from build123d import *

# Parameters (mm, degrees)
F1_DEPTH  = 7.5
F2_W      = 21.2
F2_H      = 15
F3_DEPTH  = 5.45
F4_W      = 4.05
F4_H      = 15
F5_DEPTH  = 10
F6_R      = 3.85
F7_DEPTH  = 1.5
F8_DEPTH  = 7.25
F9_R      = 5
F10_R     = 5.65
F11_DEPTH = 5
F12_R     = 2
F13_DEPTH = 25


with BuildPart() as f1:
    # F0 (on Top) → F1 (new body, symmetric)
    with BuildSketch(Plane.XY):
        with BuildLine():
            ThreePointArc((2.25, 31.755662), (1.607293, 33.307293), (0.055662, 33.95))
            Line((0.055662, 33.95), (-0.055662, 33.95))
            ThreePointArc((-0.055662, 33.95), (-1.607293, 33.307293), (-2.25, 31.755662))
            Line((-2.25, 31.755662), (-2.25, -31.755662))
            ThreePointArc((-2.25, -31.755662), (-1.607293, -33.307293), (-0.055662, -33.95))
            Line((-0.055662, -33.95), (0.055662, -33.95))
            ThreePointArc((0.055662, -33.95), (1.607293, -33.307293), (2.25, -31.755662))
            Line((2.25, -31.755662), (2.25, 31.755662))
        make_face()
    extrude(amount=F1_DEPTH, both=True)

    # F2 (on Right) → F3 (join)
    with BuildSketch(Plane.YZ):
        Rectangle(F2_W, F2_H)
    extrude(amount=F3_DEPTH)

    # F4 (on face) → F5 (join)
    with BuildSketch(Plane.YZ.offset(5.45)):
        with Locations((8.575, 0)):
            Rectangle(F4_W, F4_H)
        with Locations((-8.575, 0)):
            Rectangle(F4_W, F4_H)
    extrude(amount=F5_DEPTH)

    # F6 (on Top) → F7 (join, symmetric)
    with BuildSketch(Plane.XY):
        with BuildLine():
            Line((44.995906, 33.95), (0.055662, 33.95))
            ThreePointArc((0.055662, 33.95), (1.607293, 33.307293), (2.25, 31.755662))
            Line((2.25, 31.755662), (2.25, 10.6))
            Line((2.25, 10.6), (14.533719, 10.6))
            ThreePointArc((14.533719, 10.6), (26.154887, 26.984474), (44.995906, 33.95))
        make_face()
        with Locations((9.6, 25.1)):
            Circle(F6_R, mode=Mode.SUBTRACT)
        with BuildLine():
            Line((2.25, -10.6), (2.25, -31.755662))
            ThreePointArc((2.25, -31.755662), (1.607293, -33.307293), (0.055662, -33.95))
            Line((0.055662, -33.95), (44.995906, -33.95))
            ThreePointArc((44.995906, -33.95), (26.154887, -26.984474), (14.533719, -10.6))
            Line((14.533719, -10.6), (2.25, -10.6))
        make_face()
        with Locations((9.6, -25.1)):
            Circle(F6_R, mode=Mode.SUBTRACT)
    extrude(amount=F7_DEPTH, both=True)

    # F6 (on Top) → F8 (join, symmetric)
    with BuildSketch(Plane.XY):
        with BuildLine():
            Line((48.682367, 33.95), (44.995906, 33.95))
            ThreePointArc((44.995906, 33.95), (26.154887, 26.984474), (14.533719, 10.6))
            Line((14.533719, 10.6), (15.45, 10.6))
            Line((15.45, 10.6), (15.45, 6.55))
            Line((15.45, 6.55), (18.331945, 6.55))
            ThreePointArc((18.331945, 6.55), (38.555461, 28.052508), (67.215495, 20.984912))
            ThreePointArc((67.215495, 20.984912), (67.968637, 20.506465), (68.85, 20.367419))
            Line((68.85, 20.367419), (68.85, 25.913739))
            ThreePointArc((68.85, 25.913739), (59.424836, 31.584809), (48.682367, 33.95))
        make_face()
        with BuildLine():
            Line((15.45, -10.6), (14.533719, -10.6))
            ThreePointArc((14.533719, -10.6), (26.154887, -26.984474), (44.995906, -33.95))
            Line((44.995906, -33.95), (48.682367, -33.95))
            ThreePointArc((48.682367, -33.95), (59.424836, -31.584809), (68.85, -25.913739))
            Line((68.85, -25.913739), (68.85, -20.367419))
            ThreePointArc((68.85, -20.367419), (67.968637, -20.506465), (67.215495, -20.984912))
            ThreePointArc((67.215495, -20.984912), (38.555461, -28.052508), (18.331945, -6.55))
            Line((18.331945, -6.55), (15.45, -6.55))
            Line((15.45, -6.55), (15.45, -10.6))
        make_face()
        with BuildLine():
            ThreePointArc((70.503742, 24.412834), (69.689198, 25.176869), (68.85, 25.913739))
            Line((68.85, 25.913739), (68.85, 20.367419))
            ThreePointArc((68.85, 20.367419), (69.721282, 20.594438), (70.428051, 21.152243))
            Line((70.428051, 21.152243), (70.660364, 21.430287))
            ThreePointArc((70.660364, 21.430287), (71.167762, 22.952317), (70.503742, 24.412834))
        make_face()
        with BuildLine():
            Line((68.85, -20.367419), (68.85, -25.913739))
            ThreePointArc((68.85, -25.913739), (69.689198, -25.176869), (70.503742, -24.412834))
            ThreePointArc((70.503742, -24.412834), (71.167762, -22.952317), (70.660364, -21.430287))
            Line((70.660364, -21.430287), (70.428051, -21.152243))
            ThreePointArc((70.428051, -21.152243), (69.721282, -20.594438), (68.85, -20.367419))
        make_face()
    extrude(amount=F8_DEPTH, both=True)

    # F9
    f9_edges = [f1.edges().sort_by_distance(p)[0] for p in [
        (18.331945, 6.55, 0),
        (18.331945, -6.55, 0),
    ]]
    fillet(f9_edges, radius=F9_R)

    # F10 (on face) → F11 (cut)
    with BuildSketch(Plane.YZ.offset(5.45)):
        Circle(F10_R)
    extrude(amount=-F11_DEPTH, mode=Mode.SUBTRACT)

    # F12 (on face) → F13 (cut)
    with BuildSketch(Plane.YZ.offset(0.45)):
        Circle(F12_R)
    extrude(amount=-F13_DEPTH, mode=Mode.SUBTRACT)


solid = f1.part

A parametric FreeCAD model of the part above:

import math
import FreeCAD as App
import Part
import Sketcher

V = App.Vector


def edges_at(feature, points):
    """Names of the edges that pass closest to the given points."""
    edges = feature.Shape.Edges
    near = lambda p: min(range(len(edges)), key=lambda i: edges[i].distToShape(Part.Vertex(*p))[0])
    return sorted({f"Edge{near(p) + 1}" for p in points})

doc = App.newDocument("Part")
body = doc.addObject("PartDesign::Body", "Body")

# Sketch on XY plane
sketch1 = doc.addObject("Sketcher::SketchObject", "Sketch")
body.addObject(sketch1)
sketch1.AttachmentSupport = (doc.XY_Plane, [""])
sketch1.MapMode = "FlatFace"
sketch1.addGeometry([
    Part.ArcOfCircle(Part.Circle(V(0.055661, 31.755661, 0), V(0, 0, 1), 2.194339), math.radians(0.000025), math.radians(89.999975)),  # 0
    Part.LineSegment(V(0.055662, 33.95, 0), V(-0.055662, 33.95, 0)),  # 1
    Part.ArcOfCircle(Part.Circle(V(-0.055661, 31.755661, 0), V(0, 0, 1), 2.194339), math.radians(90.000025), math.radians(179.999975)),  # 2
    Part.LineSegment(V(-2.25, 31.755662, 0), V(-2.25, -31.755662, 0)),  # 3
    Part.ArcOfCircle(Part.Circle(V(-0.055661, -31.755661, 0), V(0, 0, 1), 2.194339), math.radians(-179.999975), math.radians(-90.000025)),  # 4
    Part.LineSegment(V(-0.055662, -33.95, 0), V(0.055662, -33.95, 0)),  # 5
    Part.ArcOfCircle(Part.Circle(V(0.055661, -31.755661, 0), V(0, 0, 1), 2.194339), math.radians(-89.999975), math.radians(-0.000025)),  # 6
    Part.LineSegment(V(2.25, -31.755662, 0), V(2.25, 31.755662, 0)),  # 7
], False)
sketch1.addConstraint([
    Sketcher.Constraint("Tangent", 0, 2, 1, 1),
    Sketcher.Constraint("Tangent", 1, 2, 2, 1),
    Sketcher.Constraint("Tangent", 2, 2, 3, 1),
    Sketcher.Constraint("Tangent", 3, 2, 4, 1),
    Sketcher.Constraint("Tangent", 4, 2, 5, 1),
    Sketcher.Constraint("Tangent", 5, 2, 6, 1),
    Sketcher.Constraint("Tangent", 6, 2, 7, 1),
    Sketcher.Constraint("Tangent", 7, 2, 0, 1),
    Sketcher.Constraint("Horizontal", 1),
    Sketcher.Constraint("Vertical", 3),
    Sketcher.Constraint("Horizontal", 5),
    Sketcher.Constraint("Vertical", 7),
    Sketcher.Constraint("Equal", 0, 2),
    Sketcher.Constraint("Equal", 2, 4),
    Sketcher.Constraint("Equal", 4, 6),
    Sketcher.Constraint("Symmetric", 0, 3, 4, 3, -1, 1),
    Sketcher.Constraint("DistanceX", 3, 2, 6, 2, 4.5),
    Sketcher.Constraint("DistanceY", -1, 1, 0, 2, 33.95),
    Sketcher.Constraint("Radius", 0, 2.194339),
])
pad1 = doc.addObject("PartDesign::Pad", "Pad")
body.addObject(pad1)
pad1.Profile = sketch1
pad1.Length = 15
pad1.Midplane = True

# Sketch on YZ plane
sketch2 = doc.addObject("Sketcher::SketchObject", "Sketch001")
body.addObject(sketch2)
sketch2.AttachmentSupport = (doc.YZ_Plane, [""])
sketch2.MapMode = "FlatFace"
sketch2.addGeometry([
    Part.LineSegment(V(-10.6, 7.5, 0), V(-10.6, -7.5, 0)),
    Part.LineSegment(V(-10.6, -7.5, 0), V(10.6, -7.5, 0)),
    Part.LineSegment(V(10.6, -7.5, 0), V(10.6, 7.5, 0)),
    Part.LineSegment(V(10.6, 7.5, 0), V(-10.6, 7.5, 0)),
], False)
sketch2.addConstraint([
    Sketcher.Constraint("Coincident", 0, 2, 1, 1),
    Sketcher.Constraint("Coincident", 1, 2, 2, 1),
    Sketcher.Constraint("Coincident", 2, 2, 3, 1),
    Sketcher.Constraint("Coincident", 3, 2, 0, 1),
    Sketcher.Constraint("Vertical", 0),
    Sketcher.Constraint("Horizontal", 1),
    Sketcher.Constraint("Vertical", 2),
    Sketcher.Constraint("Horizontal", 3),
    Sketcher.Constraint("Symmetric", 0, 2, 2, 2, -1, 1),
    Sketcher.Constraint("DistanceY", 0, 2, 0, 1, 15.0),
    Sketcher.Constraint("DistanceX", 1, 1, 1, 2, 21.2),
])
pad2 = doc.addObject("PartDesign::Pad", "Pad001")
body.addObject(pad2)
pad2.Profile = sketch2
pad2.Length = 5.45

# Sketch on YZ plane
sketch3 = doc.addObject("Sketcher::SketchObject", "Sketch002")
body.addObject(sketch3)
sketch3.AttachmentSupport = (doc.YZ_Plane, [""])
sketch3.MapMode = "FlatFace"
sketch3.AttachmentOffset = App.Placement(V(0, 0, 5.45), App.Rotation())
sketch3.addGeometry([
    Part.LineSegment(V(6.55, 7.5, 0), V(6.55, -7.5, 0)),  # 0
    Part.LineSegment(V(6.55, -7.5, 0), V(10.6, -7.5, 0)),  # 1
    Part.LineSegment(V(10.6, -7.5, 0), V(10.6, 7.5, 0)),  # 2
    Part.LineSegment(V(10.6, 7.5, 0), V(6.55, 7.5, 0)),  # 3
    Part.LineSegment(V(-10.6, 7.5, 0), V(-10.6, -7.5, 0)),  # 4
    Part.LineSegment(V(-10.6, -7.5, 0), V(-6.55, -7.5, 0)),  # 5
    Part.LineSegment(V(-6.55, -7.5, 0), V(-6.55, 7.5, 0)),  # 6
    Part.LineSegment(V(-6.55, 7.5, 0), V(-10.6, 7.5, 0)),  # 7
], False)
sketch3.addConstraint([
    Sketcher.Constraint("Coincident", 0, 2, 1, 1),
    Sketcher.Constraint("Coincident", 1, 2, 2, 1),
    Sketcher.Constraint("Coincident", 2, 2, 3, 1),
    Sketcher.Constraint("Coincident", 3, 2, 0, 1),
    Sketcher.Constraint("Coincident", 4, 2, 5, 1),
    Sketcher.Constraint("Coincident", 5, 2, 6, 1),
    Sketcher.Constraint("Coincident", 6, 2, 7, 1),
    Sketcher.Constraint("Coincident", 7, 2, 4, 1),
    Sketcher.Constraint("Vertical", 0),
    Sketcher.Constraint("Horizontal", 1),
    Sketcher.Constraint("Vertical", 2),
    Sketcher.Constraint("Horizontal", 3),
    Sketcher.Constraint("Vertical", 4),
    Sketcher.Constraint("Horizontal", 5),
    Sketcher.Constraint("Vertical", 6),
    Sketcher.Constraint("Horizontal", 7),
    Sketcher.Constraint("Symmetric", 2, 2, 4, 2, -1, 1),
    Sketcher.Constraint("Symmetric", 0, 2, 6, 2, -1, 1),
    Sketcher.Constraint("Horizontal", 1, 2, 4, 2),
    Sketcher.Constraint("DistanceY", 0, 2, 0, 1, 15.0),
    Sketcher.Constraint("DistanceX", 1, 1, 1, 2, 4.05),
    Sketcher.Constraint("DistanceX", -1, 1, 1, 2, 10.6),
])
pad3 = doc.addObject("PartDesign::Pad", "Pad002")
body.addObject(pad3)
pad3.Profile = sketch3
pad3.Length = 10

# Sketch on XY plane
sketch4 = doc.addObject("Sketcher::SketchObject", "Sketch003")
body.addObject(sketch4)
sketch4.AttachmentSupport = (doc.XY_Plane, [""])
sketch4.MapMode = "FlatFace"
sketch4.addGeometry([
    Part.LineSegment(V(44.995906, 33.95, 0), V(0.055662, 33.95, 0)),  # 0
    Part.ArcOfCircle(Part.Circle(V(0.055661, 31.755661, 0), V(0, 0, 1), 2.194339), math.radians(0.000025), math.radians(89.999975)),  # 1
    Part.LineSegment(V(2.25, 31.755662, 0), V(2.25, 10.6, 0)),  # 2
    Part.LineSegment(V(2.25, 10.6, 0), V(14.533719, 10.6, 0)),  # 3
    Part.ArcOfCircle(Part.Circle(V(46.839136, 0.000001, 0), V(0, 0, 1), 33.999999), math.radians(93.107679), math.radians(161.834389)),  # 4
    Part.Circle(V(9.6, 25.1, 0), V(0, 0, 1), 3.85),  # 5
    Part.LineSegment(V(2.25, -10.6, 0), V(2.25, -31.755662, 0)),  # 6
    Part.ArcOfCircle(Part.Circle(V(0.055661, -31.755661, 0), V(0, 0, 1), 2.194339), math.radians(-89.999975), math.radians(-0.000025)),  # 7
    Part.LineSegment(V(0.055662, -33.95, 0), V(44.995906, -33.95, 0)),  # 8
    Part.ArcOfCircle(Part.Circle(V(46.839136, -0.000001, 0), V(0, 0, 1), 33.999999), math.radians(-161.834389), math.radians(-93.107679)),  # 9
    Part.LineSegment(V(14.533719, -10.6, 0), V(2.25, -10.6, 0)),  # 10
    Part.Circle(V(9.6, -25.1, 0), V(0, 0, 1), 3.85),  # 11
], False)
sketch4.addConstraint([
    Sketcher.Constraint("Tangent", 0, 2, 1, 2),
    Sketcher.Constraint("Tangent", 1, 1, 2, 1),
    Sketcher.Constraint("Coincident", 2, 2, 3, 1),
    Sketcher.Constraint("Coincident", 3, 2, 4, 2),
    Sketcher.Constraint("Coincident", 4, 1, 0, 1),
    Sketcher.Constraint("Tangent", 6, 2, 7, 2),
    Sketcher.Constraint("Tangent", 7, 1, 8, 1),
    Sketcher.Constraint("Coincident", 8, 2, 9, 2),
    Sketcher.Constraint("Coincident", 9, 1, 10, 1),
    Sketcher.Constraint("Coincident", 10, 2, 6, 1),
    Sketcher.Constraint("Horizontal", 0),
    Sketcher.Constraint("Vertical", 2),
    Sketcher.Constraint("Horizontal", 3),
    Sketcher.Constraint("Vertical", 6),
    Sketcher.Constraint("Horizontal", 8),
    Sketcher.Constraint("Horizontal", 10),
    Sketcher.Constraint("Coincident", 9, 3, 4, 3),
    Sketcher.Constraint("Equal", 1, 7),
    Sketcher.Constraint("Equal", 4, 9),
    Sketcher.Constraint("Equal", 5, 11),
    Sketcher.Constraint("Symmetric", 1, 3, 7, 3, -1),
    Sketcher.Constraint("Symmetric", 5, 3, 11, 3, -1),
    Sketcher.Constraint("Symmetric", 3, 2, 9, 1, -1),
    Sketcher.Constraint("Radius", 4, 33.999999),
    Sketcher.Constraint("Diameter", 5, 7.7),
    Sketcher.Constraint("DistanceX", -1, 1, 5, 3, 9.6),
    Sketcher.Constraint("DistanceY", -1, 1, 5, 3, 25.1),
    Sketcher.Constraint("DistanceY", -1, 1, 2, 2, 10.6),
    Sketcher.Constraint("DistanceY", -1, 1, 0, 2, 33.95),
    Sketcher.Constraint("DistanceX", -1, 1, 1, 1, 2.25),
    Sketcher.Constraint("Radius", 1, 2.194339),
    Sketcher.Constraint("DistanceX", 3, 1, 3, 2, 12.283719),
])
pad4 = doc.addObject("PartDesign::Pad", "Pad003")
body.addObject(pad4)
pad4.Profile = sketch4
pad4.Length = 3
pad4.Midplane = True

# Sketch on XY plane
sketch5 = doc.addObject("Sketcher::SketchObject", "Sketch004")
body.addObject(sketch5)
sketch5.AttachmentSupport = (doc.XY_Plane, [""])
sketch5.MapMode = "FlatFace"
sketch5.addGeometry([
    Part.LineSegment(V(48.682367, 33.95, 0), V(44.995906, 33.95, 0)),  # 0
    Part.ArcOfCircle(Part.Circle(V(46.839136, 0.000001, 0), V(0, 0, 1), 33.999999), math.radians(93.107679), math.radians(161.834389)),  # 1
    Part.LineSegment(V(14.533719, 10.6, 0), V(15.45, 10.6, 0)),  # 2
    Part.LineSegment(V(15.45, 10.6, 0), V(15.45, 6.55, 0)),  # 3
    Part.LineSegment(V(15.45, 6.55, 0), V(18.331945, 6.55, 0)),  # 4
    Part.ArcOfCircle(Part.Circle(V(46.839137, 0, 0), V(0, 0, 1), 29.25), math.radians(45.84294), math.radians(167.059938)),  # 5
    Part.ArcOfCircle(Part.Circle(V(68.744131, 22.559199, 0), V(0, 0, 1), 2.194335), math.radians(-134.157116), math.radians(-87.234604)),  # 6
    Part.ArcOfCircle(Part.Circle(V(68.744132, 22.559199, 0), V(0, 0, 1), 2.194336), math.radians(-87.234635), math.radians(-39.879599)),  # 7
    Part.LineSegment(V(70.428051, 21.152243, 0), V(70.660364, 21.430287, 0)),  # 8
    Part.ArcOfCircle(Part.Circle(V(68.976442, 22.837245, 0), V(0, 0, 1), 2.194339), math.radians(-39.879585), math.radians(45.891591)),  # 9
    Part.ArcOfCircle(Part.Circle(V(46.839949, 0.000883, 0), V(0, 0, 1), 33.998801), math.radians(45.891569), math.radians(49.65585)),  # 10
    Part.ArcOfCircle(Part.Circle(V(46.839136, 0.000001, 0), V(0, 0, 1), 33.999999), math.radians(49.655768), math.radians(86.892319)),  # 11
    Part.LineSegment(V(15.45, -10.6, 0), V(14.533719, -10.6, 0)),  # 12
    Part.ArcOfCircle(Part.Circle(V(46.839136, -0.000001, 0), V(0, 0, 1), 33.999999), math.radians(-161.834389), math.radians(-93.107679)),  # 13
    Part.LineSegment(V(44.995906, -33.95, 0), V(48.682367, -33.95, 0)),  # 14
    Part.ArcOfCircle(Part.Circle(V(46.839136, -0.000001, 0), V(0, 0, 1), 33.999999), math.radians(-86.892319), math.radians(-49.655768)),  # 15
    Part.ArcOfCircle(Part.Circle(V(46.839949, -0.000883, 0), V(0, 0, 1), 33.998801), math.radians(-49.65585), math.radians(-45.891569)),  # 16
    Part.ArcOfCircle(Part.Circle(V(68.976442, -22.837245, 0), V(0, 0, 1), 2.194339), math.radians(-45.891591), math.radians(39.879585)),  # 17
    Part.LineSegment(V(70.660364, -21.430287, 0), V(70.428051, -21.152243, 0)),  # 18
    Part.ArcOfCircle(Part.Circle(V(68.744132, -22.559199, 0), V(0, 0, 1), 2.194336), math.radians(39.879599), math.radians(87.234635)),  # 19
    Part.ArcOfCircle(Part.Circle(V(68.744131, -22.559199, 0), V(0, 0, 1), 2.194335), math.radians(87.234604), math.radians(134.157116)),  # 20
    Part.ArcOfCircle(Part.Circle(V(46.839137, 0, 0), V(0, 0, 1), 29.25), math.radians(-167.059938), math.radians(-45.84294)),  # 21
    Part.LineSegment(V(18.331945, -6.55, 0), V(15.45, -6.55, 0)),  # 22
    Part.LineSegment(V(15.45, -6.55, 0), V(15.45, -10.6, 0)),  # 23
], False)
sketch5.addConstraint([
    Sketcher.Constraint("Coincident", 0, 2, 1, 1),
    Sketcher.Constraint("Coincident", 1, 2, 2, 1),
    Sketcher.Constraint("Coincident", 2, 2, 3, 1),
    Sketcher.Constraint("Coincident", 3, 2, 4, 1),
    Sketcher.Constraint("Coincident", 4, 2, 5, 2),
    Sketcher.Constraint("Coincident", 5, 1, 6, 1),
    Sketcher.Constraint("Coincident", 6, 2, 7, 1),
    Sketcher.Constraint("Coincident", 7, 2, 8, 1),
    Sketcher.Constraint("Coincident", 8, 2, 9, 1),
    Sketcher.Constraint("Coincident", 9, 2, 10, 1),
    Sketcher.Constraint("Coincident", 10, 2, 11, 1),
    Sketcher.Constraint("Coincident", 11, 2, 0, 1),
    Sketcher.Constraint("Coincident", 12, 2, 13, 1),
    Sketcher.Constraint("Coincident", 13, 2, 14, 1),
    Sketcher.Constraint("Coincident", 14, 2, 15, 1),
    Sketcher.Constraint("Coincident", 15, 2, 16, 1),
    Sketcher.Constraint("Coincident", 16, 2, 17, 1),
    Sketcher.Constraint("Coincident", 17, 2, 18, 1),
    Sketcher.Constraint("Coincident", 18, 2, 19, 1),
    Sketcher.Constraint("Coincident", 19, 2, 20, 1),
    Sketcher.Constraint("Coincident", 20, 2, 21, 2),
    Sketcher.Constraint("Coincident", 21, 1, 22, 1),
    Sketcher.Constraint("Coincident", 22, 2, 23, 1),
    Sketcher.Constraint("Coincident", 23, 2, 12, 1),
    Sketcher.Constraint("Horizontal", 0),
    Sketcher.Constraint("Horizontal", 2),
    Sketcher.Constraint("Vertical", 3),
    Sketcher.Constraint("Horizontal", 4),
    Sketcher.Constraint("Horizontal", 12),
    Sketcher.Constraint("Horizontal", 14),
    Sketcher.Constraint("Horizontal", 22),
    Sketcher.Constraint("Vertical", 23),
    Sketcher.Constraint("Coincident", 5, 3, 1, 3),
    Sketcher.Constraint("Coincident", 7, 3, 6, 3),
    Sketcher.Constraint("Coincident", 11, 3, 1, 3),
    Sketcher.Constraint("Coincident", 13, 3, 1, 3),
    Sketcher.Constraint("Coincident", 15, 3, 1, 3),
    Sketcher.Constraint("Coincident", 20, 3, 19, 3),
    Sketcher.Constraint("Coincident", 21, 3, 1, 3),
    Sketcher.Constraint("PointOnObject", 1, 3, -1),
    Sketcher.Constraint("Radius", 1, 33.999999),
    Sketcher.Constraint("Radius", 11, 33.999999),
    Sketcher.Constraint("Radius", 13, 33.999999),
    Sketcher.Constraint("Radius", 15, 33.999999),
    Sketcher.Constraint("Radius", 5, 29.25),
    Sketcher.Constraint("Radius", 21, 29.25),
    Sketcher.Constraint("DistanceY", 3, 2, 3, 1, 4.05),
    Sketcher.Constraint("DistanceY", 23, 2, 23, 1, 4.05),
    Sketcher.Constraint("DistanceY", -1, 1, 1, 2, 10.6),
    Sketcher.Constraint("DistanceY", 12, 2, -1, 1, 10.6),
    Sketcher.Constraint("Radius", 10, 33.998801),
    Sketcher.Constraint("Radius", 16, 33.998801),
    Sketcher.Constraint("DistanceY", -1, 1, 0, 2, 33.95),
    Sketcher.Constraint("DistanceX", -1, 1, 2, 2, 15.45),
    Sketcher.Constraint("DistanceX", -1, 1, 6, 2, 68.85),
    Sketcher.Constraint("DistanceX", -1, 1, 10, 2, 68.85),
    Sketcher.Constraint("DistanceY", 13, 2, -1, 1, 33.95),
    Sketcher.Constraint("DistanceX", -1, 1, 15, 2, 68.85),
    Sketcher.Constraint("DistanceX", -1, 1, 19, 2, 68.85),
    Sketcher.Constraint("DistanceX", -1, 1, 22, 2, 15.45),
    Sketcher.Constraint("Radius", 9, 2.194339),
    Sketcher.Constraint("Radius", 17, 2.194339),
    Sketcher.Constraint("Radius", 6, 2.194335),
    Sketcher.Constraint("Radius", 19, 2.194336),
    Sketcher.Constraint("DistanceX", 2, 1, 2, 2, 0.916281),
    Sketcher.Constraint("DistanceY", -1, 1, 6, 3, 22.559199),
    Sketcher.Constraint("DistanceY", 19, 3, -1, 1, 22.559199),
    Sketcher.Constraint("DistanceX", 9, 3, 9, 2, 1.5273),
    Sketcher.Constraint("DistanceX", 17, 3, 16, 2, 1.5273),
    Sketcher.Constraint("DistanceX", -1, 1, 9, 3, 68.976442),
    Sketcher.Constraint("DistanceX", -1, 1, 10, 3, 46.839949),
    Sketcher.Constraint("DistanceX", -1, 1, 16, 3, 46.839949),
    Sketcher.Constraint("DistanceX", -1, 1, 17, 3, 68.976442),
    Sketcher.Constraint("DistanceY", -1, 1, 5, 1, 20.984912),
    Sketcher.Constraint("DistanceX", -1, 1, 7, 2, 70.428051),
    Sketcher.Constraint("DistanceX", -1, 1, 18, 2, 70.428051),
    Sketcher.Constraint("DistanceY", 20, 2, -1, 1, 20.984912),
    Sketcher.Constraint("DistanceY", 6, 2, 8, 2, 1.062868),
    Sketcher.Constraint("DistanceY", 17, 3, 17, 2, 1.406958),
])
pad5 = doc.addObject("PartDesign::Pad", "Pad004")
body.addObject(pad5)
pad5.Profile = sketch5
pad5.Length = 14.5
pad5.Midplane = True
doc.recompute()

fillet = doc.addObject("PartDesign::Fillet", "Fillet")
body.addObject(fillet)
fillet.Base = (pad5, edges_at(pad5, [(18.332, 6.55, 0), (18.332, -6.55, 0)]))
fillet.Radius = 5

# Sketch on YZ plane
sketch6 = doc.addObject("Sketcher::SketchObject", "Sketch005")
body.addObject(sketch6)
sketch6.AttachmentSupport = (doc.YZ_Plane, [""])
sketch6.MapMode = "FlatFace"
sketch6.AttachmentOffset = App.Placement(V(0, 0, 5.45), App.Rotation())
sketch6.addGeometry(Part.Circle(V(0, 0, 0), V(0, 0, 1), 5.65), False)
sketch6.addConstraint([
    Sketcher.Constraint("Coincident", 0, 3, -1, 1),
    Sketcher.Constraint("Diameter", 0, 11.3),
])
pocket1 = doc.addObject("PartDesign::Pocket", "Pocket")
body.addObject(pocket1)
pocket1.Profile = sketch6
pocket1.Length = 5

# Sketch on YZ plane
sketch7 = doc.addObject("Sketcher::SketchObject", "Sketch006")
body.addObject(sketch7)
sketch7.AttachmentSupport = (doc.YZ_Plane, [""])
sketch7.MapMode = "FlatFace"
sketch7.AttachmentOffset = App.Placement(V(0, 0, 0.45), App.Rotation())
sketch7.addGeometry(Part.Circle(V(0, 0, 0), V(0, 0, 1), 2), False)
sketch7.addConstraint([
    Sketcher.Constraint("Coincident", 0, 3, -1, 1),
    Sketcher.Constraint("Diameter", 0, 4.0),
])
pocket2 = doc.addObject("PartDesign::Pocket", "Pocket001")
body.addObject(pocket2)
pocket2.Profile = sketch7
pocket2.Length = 25

doc.recompute()
